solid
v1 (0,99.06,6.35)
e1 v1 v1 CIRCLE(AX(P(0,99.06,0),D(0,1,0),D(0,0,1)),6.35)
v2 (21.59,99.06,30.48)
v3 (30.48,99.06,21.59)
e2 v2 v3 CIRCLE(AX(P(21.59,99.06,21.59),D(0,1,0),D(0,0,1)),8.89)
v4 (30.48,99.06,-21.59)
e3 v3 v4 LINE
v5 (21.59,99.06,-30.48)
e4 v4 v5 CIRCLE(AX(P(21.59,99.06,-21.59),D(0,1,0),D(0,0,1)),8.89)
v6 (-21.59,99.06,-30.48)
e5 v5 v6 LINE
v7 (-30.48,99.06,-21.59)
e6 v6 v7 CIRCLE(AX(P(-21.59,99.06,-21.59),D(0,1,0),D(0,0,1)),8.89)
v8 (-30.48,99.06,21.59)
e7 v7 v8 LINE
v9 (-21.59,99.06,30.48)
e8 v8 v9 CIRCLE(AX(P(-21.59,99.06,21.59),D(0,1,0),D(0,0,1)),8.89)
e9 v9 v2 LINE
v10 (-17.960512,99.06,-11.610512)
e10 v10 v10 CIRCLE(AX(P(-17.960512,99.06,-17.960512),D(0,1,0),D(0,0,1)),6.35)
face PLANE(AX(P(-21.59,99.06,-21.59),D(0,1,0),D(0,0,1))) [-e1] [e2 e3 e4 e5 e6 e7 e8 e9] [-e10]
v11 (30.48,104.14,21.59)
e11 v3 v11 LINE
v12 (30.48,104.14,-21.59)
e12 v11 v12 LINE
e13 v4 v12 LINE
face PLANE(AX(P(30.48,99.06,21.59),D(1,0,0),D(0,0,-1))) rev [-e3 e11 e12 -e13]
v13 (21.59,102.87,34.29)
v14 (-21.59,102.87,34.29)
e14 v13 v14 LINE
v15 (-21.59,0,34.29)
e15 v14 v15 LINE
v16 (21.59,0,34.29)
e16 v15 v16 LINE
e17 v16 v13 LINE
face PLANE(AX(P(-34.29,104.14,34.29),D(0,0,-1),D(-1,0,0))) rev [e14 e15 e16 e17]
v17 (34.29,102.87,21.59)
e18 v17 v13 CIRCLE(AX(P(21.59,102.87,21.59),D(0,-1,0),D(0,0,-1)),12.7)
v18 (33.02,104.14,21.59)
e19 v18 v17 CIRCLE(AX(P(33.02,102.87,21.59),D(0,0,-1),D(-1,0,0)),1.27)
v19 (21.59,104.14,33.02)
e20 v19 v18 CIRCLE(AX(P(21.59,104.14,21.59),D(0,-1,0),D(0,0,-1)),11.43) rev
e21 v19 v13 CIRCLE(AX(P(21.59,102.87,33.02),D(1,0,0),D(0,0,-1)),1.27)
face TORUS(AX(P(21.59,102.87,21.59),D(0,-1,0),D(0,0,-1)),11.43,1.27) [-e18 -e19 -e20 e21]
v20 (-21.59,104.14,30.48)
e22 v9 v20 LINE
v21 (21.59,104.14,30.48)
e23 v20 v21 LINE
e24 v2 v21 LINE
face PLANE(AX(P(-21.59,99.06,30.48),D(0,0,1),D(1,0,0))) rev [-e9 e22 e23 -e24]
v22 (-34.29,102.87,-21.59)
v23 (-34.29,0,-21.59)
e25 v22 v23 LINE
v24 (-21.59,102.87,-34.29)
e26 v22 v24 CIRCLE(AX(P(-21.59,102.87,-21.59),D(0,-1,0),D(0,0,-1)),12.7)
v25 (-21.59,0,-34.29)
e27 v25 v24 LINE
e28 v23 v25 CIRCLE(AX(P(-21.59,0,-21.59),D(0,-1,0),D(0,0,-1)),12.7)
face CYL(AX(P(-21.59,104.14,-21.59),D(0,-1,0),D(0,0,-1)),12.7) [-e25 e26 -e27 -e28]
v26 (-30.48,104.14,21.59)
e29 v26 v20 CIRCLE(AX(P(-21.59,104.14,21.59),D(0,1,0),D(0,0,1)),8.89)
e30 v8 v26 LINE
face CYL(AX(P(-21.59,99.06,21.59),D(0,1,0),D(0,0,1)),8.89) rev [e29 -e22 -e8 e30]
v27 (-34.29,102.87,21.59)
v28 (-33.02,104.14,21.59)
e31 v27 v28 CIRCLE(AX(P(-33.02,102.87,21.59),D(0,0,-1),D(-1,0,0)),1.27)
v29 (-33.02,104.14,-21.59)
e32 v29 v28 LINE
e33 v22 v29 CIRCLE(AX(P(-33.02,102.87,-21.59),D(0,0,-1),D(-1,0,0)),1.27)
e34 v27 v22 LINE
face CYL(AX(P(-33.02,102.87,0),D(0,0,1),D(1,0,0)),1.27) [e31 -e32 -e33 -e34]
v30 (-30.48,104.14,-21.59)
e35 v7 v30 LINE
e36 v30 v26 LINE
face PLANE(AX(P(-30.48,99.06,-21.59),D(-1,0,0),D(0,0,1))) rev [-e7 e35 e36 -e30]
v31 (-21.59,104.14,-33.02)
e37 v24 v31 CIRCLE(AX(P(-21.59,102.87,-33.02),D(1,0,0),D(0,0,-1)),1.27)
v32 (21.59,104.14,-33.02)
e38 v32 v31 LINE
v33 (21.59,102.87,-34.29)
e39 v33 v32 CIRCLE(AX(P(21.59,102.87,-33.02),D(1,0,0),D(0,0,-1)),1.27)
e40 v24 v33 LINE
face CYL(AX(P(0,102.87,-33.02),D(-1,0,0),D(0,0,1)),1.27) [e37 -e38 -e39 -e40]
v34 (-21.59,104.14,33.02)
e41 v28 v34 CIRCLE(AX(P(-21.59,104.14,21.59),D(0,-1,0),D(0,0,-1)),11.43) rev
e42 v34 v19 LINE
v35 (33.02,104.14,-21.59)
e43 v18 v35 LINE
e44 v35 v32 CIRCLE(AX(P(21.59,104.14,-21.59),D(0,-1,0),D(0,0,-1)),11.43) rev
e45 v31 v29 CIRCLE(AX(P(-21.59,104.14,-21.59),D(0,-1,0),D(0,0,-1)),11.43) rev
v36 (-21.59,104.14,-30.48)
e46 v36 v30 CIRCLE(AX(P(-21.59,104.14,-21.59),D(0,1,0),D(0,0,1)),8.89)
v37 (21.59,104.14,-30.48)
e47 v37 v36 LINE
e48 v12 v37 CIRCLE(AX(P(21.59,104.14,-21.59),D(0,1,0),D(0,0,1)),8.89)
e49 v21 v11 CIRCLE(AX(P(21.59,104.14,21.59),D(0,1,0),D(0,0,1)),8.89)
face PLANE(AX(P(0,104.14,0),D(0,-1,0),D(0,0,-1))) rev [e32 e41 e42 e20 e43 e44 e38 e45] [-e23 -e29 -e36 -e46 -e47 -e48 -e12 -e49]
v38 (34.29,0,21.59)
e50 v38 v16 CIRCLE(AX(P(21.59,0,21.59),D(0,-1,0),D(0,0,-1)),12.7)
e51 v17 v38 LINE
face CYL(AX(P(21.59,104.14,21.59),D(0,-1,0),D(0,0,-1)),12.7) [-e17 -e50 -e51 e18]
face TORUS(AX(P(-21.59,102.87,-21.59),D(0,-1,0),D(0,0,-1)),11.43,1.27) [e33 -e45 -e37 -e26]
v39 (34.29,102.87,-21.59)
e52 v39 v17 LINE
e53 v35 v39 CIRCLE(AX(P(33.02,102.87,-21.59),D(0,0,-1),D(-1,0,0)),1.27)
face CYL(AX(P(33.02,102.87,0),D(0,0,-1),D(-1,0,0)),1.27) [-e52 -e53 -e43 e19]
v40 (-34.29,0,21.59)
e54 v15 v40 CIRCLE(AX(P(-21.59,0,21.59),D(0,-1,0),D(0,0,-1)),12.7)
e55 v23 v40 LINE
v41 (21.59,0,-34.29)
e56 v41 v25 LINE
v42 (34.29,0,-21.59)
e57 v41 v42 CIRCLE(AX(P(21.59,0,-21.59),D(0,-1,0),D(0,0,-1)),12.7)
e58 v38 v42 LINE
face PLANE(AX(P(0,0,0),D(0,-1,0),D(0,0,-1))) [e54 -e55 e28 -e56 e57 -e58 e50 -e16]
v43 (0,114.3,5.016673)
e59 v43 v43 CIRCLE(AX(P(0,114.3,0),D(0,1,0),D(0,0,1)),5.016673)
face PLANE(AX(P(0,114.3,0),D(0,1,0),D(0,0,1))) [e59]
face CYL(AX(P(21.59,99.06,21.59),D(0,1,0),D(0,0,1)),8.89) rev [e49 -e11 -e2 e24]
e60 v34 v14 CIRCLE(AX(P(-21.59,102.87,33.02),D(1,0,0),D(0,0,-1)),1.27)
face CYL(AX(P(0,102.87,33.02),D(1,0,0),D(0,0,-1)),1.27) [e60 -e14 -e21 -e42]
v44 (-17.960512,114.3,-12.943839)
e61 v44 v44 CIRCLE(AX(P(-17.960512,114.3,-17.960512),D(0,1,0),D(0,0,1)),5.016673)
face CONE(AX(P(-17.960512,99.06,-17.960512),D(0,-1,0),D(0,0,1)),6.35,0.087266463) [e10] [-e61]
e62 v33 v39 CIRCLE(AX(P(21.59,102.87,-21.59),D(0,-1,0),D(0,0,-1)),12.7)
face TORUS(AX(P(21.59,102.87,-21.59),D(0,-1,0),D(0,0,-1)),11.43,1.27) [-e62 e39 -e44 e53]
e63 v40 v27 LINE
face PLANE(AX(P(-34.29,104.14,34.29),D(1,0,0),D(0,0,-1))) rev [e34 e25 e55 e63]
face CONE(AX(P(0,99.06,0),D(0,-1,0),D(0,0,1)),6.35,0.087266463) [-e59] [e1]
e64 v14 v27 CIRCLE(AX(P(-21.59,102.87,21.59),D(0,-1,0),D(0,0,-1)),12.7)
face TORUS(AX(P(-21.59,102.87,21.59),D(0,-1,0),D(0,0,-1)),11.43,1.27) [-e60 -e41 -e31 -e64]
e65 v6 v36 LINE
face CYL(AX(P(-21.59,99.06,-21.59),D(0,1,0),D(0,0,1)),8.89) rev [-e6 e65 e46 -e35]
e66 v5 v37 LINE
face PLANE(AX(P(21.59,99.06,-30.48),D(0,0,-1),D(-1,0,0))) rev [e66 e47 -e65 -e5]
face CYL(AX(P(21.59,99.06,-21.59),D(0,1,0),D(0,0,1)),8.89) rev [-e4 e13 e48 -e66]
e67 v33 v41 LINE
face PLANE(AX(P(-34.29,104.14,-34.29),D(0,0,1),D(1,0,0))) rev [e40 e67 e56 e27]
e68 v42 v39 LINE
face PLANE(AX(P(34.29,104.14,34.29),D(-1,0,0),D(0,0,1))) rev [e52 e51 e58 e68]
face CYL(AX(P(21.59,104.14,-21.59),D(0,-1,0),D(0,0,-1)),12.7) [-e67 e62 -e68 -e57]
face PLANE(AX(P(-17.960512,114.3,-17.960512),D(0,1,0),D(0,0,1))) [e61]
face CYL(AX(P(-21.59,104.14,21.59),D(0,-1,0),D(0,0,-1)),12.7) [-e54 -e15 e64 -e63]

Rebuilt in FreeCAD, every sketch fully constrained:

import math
import FreeCAD as App
import Part
import Sketcher

V = App.Vector
Q = App.Units.Quantity


def edges_at(feature, points):
    """Names of the edges that pass closest to the given points."""
    edges = feature.Shape.Edges
    near = lambda p: min(range(len(edges)), key=lambda i: edges[i].distToShape(Part.Vertex(*p))[0])
    return sorted({f"Edge{near(p) + 1}" for p in points})


def add_polygon(sketch, points):
    """Adds a closed chain of lines whose ends are joined by coincident constraints."""
    first, n = sketch.GeometryCount, len(points)
    for a, b in zip(points, points[1:] + points[:1]):
        sketch.addGeometry(Part.LineSegment(App.Vector(*a, 0), App.Vector(*b, 0)), False)
    for i in range(n):
        sketch.addConstraint(Sketcher.Constraint("Coincident", first + i, 2, first + (i + 1) % n, 1))

doc = App.newDocument("Part")
body = doc.addObject("PartDesign::Body", "Body")

sketch1 = doc.addObject("Sketcher::SketchObject", "Sketch")
body.addObject(sketch1)
sketch1.AttachmentSupport = (doc.XZ_Plane, [""])
sketch1.MapMode = "FlatFace"
add_polygon(sketch1, [(-34.29, -34.29), (-34.29, 34.29), (34.29, 34.29), (34.29, -34.29)])
sketch1.addConstraint([
    Sketcher.Constraint("Vertical", 0),
    Sketcher.Constraint("Horizontal", 1),
    Sketcher.Constraint("Vertical", 2),
    Sketcher.Constraint("Horizontal", 3),
    Sketcher.Constraint("Symmetric", 0, 2, 2, 2, -1, 1),
    Sketcher.Constraint("Equal", 3, 0),
    Sketcher.Constraint("DistanceX", 1, 1, 1, 2, Q("2.7 in")),
])
pad1 = doc.addObject("PartDesign::Pad", "Pad")
body.addObject(pad1)
pad1.Profile = sketch1
pad1.Length = Q("4.1 in")
pad1.Reversed = True
doc.recompute()

fillet = doc.addObject("PartDesign::Fillet", "Fillet")
body.addObject(fillet)
fillet.Base = (pad1, edges_at(pad1, [
    (34.29, 52.07, 34.29),
    (-34.29, 52.07, 34.29),
    (-34.29, 52.07, -34.29),
    (34.29, 52.07, -34.29),
]))
fillet.Radius = Q("0.5 in")

sketch2 = doc.addObject("Sketcher::SketchObject", "Sketch001")
body.addObject(sketch2)
sketch2.AttachmentSupport = (doc.XZ_Plane, [""])
sketch2.MapMode = "FlatFace"
sketch2.AttachmentOffset = App.Placement(V(0, 0, -4.1 * 25.4), App.Rotation())
sketch2.addGeometry([
    Part.LineSegment(V(-30.48, -21.59, 0), V(-30.48, 21.59, 0)),
    Part.ArcOfCircle(Part.Circle(V(-21.59, 21.59, 0), V(0, 0, 1), 8.89), math.radians(90), math.radians(180)),
    Part.LineSegment(V(-21.59, 30.48, 0), V(21.59, 30.48, 0)),
    Part.ArcOfCircle(Part.Circle(V(21.59, 21.59, 0), V(0, 0, 1), 8.89), math.radians(0), math.radians(90)),
    Part.LineSegment(V(30.48, 21.59, 0), V(30.48, -21.59, 0)),
    Part.ArcOfCircle(Part.Circle(V(21.59, -21.59, 0), V(0, 0, 1), 8.89), math.radians(-90), math.radians(0)),
    Part.LineSegment(V(21.59, -30.48, 0), V(-21.59, -30.48, 0)),
    Part.ArcOfCircle(Part.Circle(V(-21.59, -21.59, 0), V(0, 0, 1), 8.89), math.radians(180), math.radians(270)),
], False)
sketch2.addConstraint([
    Sketcher.Constraint("Tangent", 0, 2, 1, 2),
    Sketcher.Constraint("Tangent", 1, 1, 2, 1),
    Sketcher.Constraint("Tangent", 2, 2, 3, 2),
    Sketcher.Constraint("Tangent", 3, 1, 4, 1),
    Sketcher.Constraint("Tangent", 4, 2, 5, 2),
    Sketcher.Constraint("Tangent", 5, 1, 6, 1),
    Sketcher.Constraint("Tangent", 6, 2, 7, 2),
    Sketcher.Constraint("Tangent", 7, 1, 0, 1),
    Sketcher.Constraint("Vertical", 0),
    Sketcher.Constraint("Horizontal", 2),
    Sketcher.Constraint("Vertical", 4),
    Sketcher.Constraint("Horizontal", 6),
    Sketcher.Constraint("Equal", 1, 3),
    Sketcher.Constraint("Equal", 3, 5),
    Sketcher.Constraint("Equal", 5, 7),
    Sketcher.Constraint("Symmetric", 1, 3, 5, 3, -1, 1),
    Sketcher.Constraint("Equal", 6, 0),
    Sketcher.Constraint("Radius", 1, Q("0.35 in")),
    Sketcher.Constraint("DistanceX", 2, 1, 2, 2, Q("1.7 in")),
])
pocket1 = doc.addObject("PartDesign::Pocket", "Pocket")
body.addObject(pocket1)
pocket1.Profile = sketch2
pocket1.Length = Q("0.2 in")
pocket1.Reversed = True
doc.recompute()

fillet2 = doc.addObject("PartDesign::Fillet", "Fillet001")
body.addObject(fillet2)
fillet2.Base = (pocket1, edges_at(pocket1, [
    (0, 104.14, 34.29),
    (-34.29, 104.14, 0),
    (34.29, 104.14, 0),
    (0, 104.14, -34.29),
    (30.57, 104.14, 30.57),
    (30.57, 104.14, -30.57),
    (-30.57, 104.14, -30.57),
    (-30.57, 104.14, 30.57),
]))
fillet2.Radius = Q("0.05 in")

sketch3 = doc.addObject("Sketcher::SketchObject", "Sketch002")
body.addObject(sketch3)
sketch3.AttachmentSupport = (doc.XZ_Plane, [""])
sketch3.MapMode = "FlatFace"
sketch3.AttachmentOffset = App.Placement(V(0, 0, -3.9 * 25.4), App.Rotation())
sketch3.addGeometry([
    Part.Circle(V(0, 0, 0), V(0, 0, 1), 6.35),
    Part.Circle(V(-17.960512, -17.960512, 0), V(0, 0, 1), 6.35),
], False)
sketch3.addConstraint([
    Sketcher.Constraint("Coincident", 0, 3, -1, 1),
    Sketcher.Constraint("Equal", 0, 1),
    Sketcher.Constraint("Diameter", 0, Q("0.5 in")),
    Sketcher.Constraint("DistanceX", 1, 3, -1, 1, Q("17.960512 mm")),
    Sketcher.Constraint("DistanceY", 1, 3, -1, 1, Q("17.960512 mm")),
])
pad2 = doc.addObject("PartDesign::Pad", "Pad001")
body.addObject(pad2)
pad2.Profile = sketch3
pad2.Length = Q("0.6 in")
pad2.Reversed = True
pad2.TaperAngle = -5

doc.recompute()
